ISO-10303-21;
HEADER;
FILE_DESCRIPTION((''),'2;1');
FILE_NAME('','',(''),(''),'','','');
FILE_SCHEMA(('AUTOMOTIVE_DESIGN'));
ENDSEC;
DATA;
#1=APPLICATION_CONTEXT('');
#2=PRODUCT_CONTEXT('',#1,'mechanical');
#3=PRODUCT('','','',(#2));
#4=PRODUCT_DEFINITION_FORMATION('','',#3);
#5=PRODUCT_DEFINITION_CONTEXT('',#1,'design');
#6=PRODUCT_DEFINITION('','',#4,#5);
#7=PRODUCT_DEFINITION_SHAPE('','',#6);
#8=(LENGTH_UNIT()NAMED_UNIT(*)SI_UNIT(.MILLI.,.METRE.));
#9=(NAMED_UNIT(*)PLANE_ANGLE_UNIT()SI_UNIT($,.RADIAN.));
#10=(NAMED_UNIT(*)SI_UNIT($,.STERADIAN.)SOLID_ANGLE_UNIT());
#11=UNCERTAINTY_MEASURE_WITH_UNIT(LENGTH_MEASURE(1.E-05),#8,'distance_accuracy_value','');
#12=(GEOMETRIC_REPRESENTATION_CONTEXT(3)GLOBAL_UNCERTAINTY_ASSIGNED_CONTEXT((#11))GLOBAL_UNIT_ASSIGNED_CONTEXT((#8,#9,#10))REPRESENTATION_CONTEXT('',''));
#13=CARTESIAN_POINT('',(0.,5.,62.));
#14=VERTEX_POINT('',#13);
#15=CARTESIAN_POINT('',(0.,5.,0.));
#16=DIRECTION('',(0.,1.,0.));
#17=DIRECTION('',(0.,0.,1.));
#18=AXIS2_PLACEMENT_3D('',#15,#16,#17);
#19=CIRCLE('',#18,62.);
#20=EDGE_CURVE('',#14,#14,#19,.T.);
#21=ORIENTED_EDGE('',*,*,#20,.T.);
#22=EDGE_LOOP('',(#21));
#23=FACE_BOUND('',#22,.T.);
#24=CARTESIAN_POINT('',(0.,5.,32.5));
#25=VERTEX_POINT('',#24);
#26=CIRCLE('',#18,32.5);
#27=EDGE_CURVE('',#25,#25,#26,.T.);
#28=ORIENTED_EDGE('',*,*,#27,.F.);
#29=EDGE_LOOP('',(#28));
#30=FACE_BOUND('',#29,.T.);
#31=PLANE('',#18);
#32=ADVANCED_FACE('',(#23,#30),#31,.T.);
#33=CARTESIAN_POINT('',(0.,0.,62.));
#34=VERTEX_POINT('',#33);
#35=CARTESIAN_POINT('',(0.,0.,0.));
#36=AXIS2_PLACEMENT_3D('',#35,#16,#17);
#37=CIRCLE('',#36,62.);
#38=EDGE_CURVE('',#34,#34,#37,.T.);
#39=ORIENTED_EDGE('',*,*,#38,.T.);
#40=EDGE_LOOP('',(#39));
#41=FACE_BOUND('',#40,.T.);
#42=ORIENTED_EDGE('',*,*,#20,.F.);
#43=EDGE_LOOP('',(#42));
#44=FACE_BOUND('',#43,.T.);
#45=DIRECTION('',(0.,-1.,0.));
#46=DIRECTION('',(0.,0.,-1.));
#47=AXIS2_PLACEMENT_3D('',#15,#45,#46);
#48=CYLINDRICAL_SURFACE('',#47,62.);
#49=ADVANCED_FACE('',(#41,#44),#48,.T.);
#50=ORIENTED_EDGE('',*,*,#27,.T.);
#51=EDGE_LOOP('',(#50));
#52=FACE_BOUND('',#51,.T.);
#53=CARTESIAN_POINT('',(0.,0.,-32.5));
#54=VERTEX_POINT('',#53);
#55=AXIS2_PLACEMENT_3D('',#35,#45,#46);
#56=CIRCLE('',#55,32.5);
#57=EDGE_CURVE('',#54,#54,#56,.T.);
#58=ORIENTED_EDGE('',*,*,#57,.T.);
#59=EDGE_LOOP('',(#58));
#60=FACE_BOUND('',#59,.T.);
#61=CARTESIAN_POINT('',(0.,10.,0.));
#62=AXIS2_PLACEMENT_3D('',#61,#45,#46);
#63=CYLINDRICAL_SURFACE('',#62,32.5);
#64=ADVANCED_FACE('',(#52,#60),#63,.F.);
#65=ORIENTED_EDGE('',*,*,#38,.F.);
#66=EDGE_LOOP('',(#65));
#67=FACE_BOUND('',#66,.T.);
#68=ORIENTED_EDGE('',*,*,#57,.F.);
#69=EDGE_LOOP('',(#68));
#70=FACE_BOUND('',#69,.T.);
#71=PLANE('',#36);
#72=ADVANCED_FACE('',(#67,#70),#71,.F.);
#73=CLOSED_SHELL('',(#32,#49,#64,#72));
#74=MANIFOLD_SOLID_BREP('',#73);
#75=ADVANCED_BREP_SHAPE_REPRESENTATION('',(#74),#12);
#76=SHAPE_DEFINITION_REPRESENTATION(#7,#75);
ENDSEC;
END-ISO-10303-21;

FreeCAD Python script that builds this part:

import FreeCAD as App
import Part
import Sketcher

V = App.Vector

doc = App.newDocument("Part")
body = doc.addObject("PartDesign::Body", "Body")

# Sketch on XZ plane
sketch1 = body.newObject("Sketcher::SketchObject", "Sketch")
sketch1.AttachmentSupport = (doc.getObject("XZ_Plane"), [""])
sketch1.MapMode = "FlatFace"
sketch1.addGeometry(Part.Circle(V(0, 0, 0), V(0, 0, 1), 62), False)
sketch1.addConstraint(Sketcher.Constraint("Coincident", 0, 3, -1, 1))
sketch1.addConstraint(Sketcher.Constraint("Diameter", 0, 124.0))
pad1 = body.newObject("PartDesign::Pad", "Pad")
pad1.Profile = sketch1
pad1.Length = 5
pad1.Reversed = True

# Sketch on XZ plane
sketch2 = body.newObject("Sketcher::SketchObject", "Sketch001")
sketch2.AttachmentSupport = (doc.getObject("XZ_Plane"), [""])
sketch2.MapMode = "FlatFace"
sketch2.addGeometry(Part.Circle(V(0, 0, 0), V(0, 0, 1), 32), False)
sketch2.addConstraint(Sketcher.Constraint("Coincident", 0, 3, -1, 1))
sketch2.addConstraint(Sketcher.Constraint("Diameter", 0, 65.0))
pocket1 = body.newObject("PartDesign::Pocket", "Pocket")
pocket1.Profile = sketch2
pocket1.Length = 10

doc.recompute()
